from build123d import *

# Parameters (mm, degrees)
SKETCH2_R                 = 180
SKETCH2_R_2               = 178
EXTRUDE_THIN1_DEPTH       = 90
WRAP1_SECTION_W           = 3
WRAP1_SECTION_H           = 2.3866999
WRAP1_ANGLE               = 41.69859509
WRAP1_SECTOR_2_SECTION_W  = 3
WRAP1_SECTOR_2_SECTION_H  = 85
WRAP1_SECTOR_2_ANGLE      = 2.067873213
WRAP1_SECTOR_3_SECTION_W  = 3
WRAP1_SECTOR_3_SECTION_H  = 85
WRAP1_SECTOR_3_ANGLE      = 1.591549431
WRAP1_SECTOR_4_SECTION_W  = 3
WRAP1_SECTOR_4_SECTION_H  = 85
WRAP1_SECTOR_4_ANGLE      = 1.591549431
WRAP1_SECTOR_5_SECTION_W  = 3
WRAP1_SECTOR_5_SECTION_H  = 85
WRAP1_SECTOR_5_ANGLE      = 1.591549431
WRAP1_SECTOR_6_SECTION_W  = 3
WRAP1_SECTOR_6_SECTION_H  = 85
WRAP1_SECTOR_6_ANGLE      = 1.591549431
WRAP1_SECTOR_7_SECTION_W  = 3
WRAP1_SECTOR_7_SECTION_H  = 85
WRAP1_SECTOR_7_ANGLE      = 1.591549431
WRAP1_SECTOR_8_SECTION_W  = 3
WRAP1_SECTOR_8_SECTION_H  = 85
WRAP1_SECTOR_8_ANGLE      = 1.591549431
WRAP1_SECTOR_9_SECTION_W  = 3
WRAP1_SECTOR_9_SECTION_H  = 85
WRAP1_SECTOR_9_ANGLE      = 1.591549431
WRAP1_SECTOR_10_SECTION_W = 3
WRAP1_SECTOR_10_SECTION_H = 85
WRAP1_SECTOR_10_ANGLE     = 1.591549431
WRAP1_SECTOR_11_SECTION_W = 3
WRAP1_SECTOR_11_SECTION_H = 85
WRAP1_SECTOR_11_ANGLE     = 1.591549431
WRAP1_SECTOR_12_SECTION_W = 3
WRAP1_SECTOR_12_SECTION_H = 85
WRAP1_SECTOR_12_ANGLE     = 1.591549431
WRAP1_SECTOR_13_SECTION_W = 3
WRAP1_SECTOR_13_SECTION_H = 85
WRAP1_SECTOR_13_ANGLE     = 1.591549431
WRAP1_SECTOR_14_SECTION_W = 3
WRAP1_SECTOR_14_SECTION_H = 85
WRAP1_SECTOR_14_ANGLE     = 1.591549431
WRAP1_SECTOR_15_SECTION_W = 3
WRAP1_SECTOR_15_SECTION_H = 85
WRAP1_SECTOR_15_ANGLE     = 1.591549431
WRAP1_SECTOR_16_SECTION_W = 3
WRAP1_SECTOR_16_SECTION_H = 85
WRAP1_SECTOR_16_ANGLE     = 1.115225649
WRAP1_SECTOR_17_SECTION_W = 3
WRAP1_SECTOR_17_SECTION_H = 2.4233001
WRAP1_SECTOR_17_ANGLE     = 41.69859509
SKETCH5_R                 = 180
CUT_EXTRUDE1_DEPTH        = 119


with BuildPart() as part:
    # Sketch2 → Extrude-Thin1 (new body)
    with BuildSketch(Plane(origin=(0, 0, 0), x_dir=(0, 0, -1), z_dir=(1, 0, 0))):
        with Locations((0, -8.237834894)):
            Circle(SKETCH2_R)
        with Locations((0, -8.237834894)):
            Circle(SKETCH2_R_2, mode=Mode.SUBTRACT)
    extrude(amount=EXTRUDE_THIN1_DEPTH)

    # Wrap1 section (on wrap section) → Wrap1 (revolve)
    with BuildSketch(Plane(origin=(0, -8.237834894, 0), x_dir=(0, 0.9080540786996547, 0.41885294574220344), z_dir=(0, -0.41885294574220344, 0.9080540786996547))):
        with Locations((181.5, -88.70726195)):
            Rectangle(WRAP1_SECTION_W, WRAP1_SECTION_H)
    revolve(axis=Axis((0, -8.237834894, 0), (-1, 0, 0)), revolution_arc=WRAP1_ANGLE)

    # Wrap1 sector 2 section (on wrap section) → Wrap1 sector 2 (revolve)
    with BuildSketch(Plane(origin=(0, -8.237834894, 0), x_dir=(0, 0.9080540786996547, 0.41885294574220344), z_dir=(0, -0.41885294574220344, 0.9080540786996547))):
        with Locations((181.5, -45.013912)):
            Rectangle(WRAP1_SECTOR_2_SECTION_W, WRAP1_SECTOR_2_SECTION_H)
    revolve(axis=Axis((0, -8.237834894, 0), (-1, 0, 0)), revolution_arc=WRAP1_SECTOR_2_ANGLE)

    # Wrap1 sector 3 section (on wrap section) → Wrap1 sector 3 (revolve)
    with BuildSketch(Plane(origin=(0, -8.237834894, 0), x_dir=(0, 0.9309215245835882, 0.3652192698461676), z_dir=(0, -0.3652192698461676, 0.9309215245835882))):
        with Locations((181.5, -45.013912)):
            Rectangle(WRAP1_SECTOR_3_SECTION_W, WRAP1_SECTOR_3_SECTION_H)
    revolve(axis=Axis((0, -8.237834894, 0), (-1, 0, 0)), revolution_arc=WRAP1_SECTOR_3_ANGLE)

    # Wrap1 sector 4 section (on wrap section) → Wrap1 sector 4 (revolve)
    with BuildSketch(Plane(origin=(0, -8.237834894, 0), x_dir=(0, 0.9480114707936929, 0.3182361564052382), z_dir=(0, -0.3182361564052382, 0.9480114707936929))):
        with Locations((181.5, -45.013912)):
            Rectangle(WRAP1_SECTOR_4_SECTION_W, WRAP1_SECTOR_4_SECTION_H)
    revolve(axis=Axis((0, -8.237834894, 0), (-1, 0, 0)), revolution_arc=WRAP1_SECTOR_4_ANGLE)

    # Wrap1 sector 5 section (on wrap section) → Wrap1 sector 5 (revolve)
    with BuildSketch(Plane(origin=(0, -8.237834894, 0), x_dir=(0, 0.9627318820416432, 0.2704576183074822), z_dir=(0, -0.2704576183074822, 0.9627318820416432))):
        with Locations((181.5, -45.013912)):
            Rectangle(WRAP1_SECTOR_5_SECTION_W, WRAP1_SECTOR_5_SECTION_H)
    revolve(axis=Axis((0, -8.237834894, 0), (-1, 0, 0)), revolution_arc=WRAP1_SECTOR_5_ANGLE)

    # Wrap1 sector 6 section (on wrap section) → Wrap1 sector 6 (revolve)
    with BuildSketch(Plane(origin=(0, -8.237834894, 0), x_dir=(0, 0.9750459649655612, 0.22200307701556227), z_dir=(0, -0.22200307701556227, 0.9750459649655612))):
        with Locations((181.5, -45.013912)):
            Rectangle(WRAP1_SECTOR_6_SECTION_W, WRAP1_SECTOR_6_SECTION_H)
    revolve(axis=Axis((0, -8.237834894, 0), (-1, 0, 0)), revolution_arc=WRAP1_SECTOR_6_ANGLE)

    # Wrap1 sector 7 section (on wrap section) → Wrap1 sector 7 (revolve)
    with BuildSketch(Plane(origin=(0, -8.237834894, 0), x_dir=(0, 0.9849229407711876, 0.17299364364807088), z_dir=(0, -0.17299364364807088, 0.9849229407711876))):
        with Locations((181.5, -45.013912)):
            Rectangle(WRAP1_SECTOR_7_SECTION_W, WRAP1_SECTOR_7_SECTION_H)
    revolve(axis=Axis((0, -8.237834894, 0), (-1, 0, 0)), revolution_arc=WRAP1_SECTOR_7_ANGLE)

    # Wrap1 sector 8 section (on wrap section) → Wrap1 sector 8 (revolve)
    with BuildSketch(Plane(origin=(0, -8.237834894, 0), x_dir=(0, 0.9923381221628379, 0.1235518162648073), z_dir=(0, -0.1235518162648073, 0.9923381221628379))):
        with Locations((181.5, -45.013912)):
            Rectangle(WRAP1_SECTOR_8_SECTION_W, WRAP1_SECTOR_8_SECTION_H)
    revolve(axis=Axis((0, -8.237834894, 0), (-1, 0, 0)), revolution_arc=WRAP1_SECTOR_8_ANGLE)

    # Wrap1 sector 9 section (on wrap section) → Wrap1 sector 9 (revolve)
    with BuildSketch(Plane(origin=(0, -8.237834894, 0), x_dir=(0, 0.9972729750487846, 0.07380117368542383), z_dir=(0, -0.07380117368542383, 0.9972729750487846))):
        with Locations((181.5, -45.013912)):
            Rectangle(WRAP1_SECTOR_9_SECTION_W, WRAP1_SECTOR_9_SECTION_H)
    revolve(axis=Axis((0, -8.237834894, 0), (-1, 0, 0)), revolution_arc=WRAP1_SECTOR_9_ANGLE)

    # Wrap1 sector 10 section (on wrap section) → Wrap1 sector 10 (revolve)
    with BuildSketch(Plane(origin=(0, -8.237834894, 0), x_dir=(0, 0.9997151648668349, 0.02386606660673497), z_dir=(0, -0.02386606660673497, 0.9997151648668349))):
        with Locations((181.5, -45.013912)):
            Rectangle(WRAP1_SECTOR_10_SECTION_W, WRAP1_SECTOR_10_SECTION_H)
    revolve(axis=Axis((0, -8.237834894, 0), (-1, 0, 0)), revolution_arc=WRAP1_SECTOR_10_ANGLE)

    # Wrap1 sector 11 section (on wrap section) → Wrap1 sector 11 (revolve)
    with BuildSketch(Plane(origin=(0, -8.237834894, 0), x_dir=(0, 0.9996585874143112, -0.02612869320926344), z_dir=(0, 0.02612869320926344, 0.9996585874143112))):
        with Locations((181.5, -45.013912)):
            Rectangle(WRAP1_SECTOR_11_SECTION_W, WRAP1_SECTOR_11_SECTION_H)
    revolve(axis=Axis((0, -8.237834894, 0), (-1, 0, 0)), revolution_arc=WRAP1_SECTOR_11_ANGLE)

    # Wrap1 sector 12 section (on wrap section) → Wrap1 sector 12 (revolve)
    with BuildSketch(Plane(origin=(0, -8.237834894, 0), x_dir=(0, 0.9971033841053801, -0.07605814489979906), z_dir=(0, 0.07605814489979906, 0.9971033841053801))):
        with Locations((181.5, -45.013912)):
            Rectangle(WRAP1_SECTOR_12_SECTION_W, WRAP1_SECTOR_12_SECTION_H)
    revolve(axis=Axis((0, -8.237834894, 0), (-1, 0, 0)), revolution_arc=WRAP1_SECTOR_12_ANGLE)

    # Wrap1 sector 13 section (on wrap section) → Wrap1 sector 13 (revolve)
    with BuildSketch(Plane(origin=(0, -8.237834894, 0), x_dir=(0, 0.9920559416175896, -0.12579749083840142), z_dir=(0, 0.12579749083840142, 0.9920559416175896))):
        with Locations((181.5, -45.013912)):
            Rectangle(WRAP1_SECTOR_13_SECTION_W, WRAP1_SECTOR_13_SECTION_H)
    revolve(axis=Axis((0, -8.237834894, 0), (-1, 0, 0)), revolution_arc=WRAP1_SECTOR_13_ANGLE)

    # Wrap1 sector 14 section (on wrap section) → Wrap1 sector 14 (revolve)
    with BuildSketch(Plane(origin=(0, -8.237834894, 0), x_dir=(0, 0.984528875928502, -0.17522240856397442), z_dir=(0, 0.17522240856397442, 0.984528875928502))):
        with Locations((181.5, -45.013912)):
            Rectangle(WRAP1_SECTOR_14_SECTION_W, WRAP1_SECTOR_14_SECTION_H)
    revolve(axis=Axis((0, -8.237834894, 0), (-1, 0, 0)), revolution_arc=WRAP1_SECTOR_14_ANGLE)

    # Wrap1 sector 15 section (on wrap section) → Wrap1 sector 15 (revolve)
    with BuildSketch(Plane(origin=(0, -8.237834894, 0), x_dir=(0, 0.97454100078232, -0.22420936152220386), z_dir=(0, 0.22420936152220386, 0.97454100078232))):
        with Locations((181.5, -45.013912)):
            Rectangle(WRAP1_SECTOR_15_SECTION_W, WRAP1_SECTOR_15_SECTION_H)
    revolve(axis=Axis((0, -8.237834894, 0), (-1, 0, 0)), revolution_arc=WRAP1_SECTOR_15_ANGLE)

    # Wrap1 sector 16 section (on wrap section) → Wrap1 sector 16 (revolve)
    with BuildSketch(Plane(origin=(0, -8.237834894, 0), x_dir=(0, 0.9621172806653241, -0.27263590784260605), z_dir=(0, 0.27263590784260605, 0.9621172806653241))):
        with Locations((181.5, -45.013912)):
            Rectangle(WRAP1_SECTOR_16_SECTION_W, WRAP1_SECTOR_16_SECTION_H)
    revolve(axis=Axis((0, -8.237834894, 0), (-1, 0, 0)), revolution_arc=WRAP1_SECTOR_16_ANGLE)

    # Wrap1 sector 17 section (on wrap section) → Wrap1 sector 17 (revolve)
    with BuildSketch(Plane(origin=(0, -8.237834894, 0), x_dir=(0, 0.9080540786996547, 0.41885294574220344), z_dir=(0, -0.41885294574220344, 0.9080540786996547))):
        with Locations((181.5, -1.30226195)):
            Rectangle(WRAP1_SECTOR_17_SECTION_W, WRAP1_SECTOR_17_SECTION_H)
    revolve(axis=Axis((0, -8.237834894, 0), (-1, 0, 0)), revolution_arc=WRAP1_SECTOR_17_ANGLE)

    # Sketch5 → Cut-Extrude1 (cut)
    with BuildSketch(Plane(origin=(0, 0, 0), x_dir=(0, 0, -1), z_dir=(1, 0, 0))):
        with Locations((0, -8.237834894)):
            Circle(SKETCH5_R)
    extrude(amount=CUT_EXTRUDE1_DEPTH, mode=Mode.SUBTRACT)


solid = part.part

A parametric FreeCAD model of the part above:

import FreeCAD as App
import Part
import Sketcher
from FreeCAD import Vector
Q = App.Units.Quantity


def add_polygon(sketch, points):
    """Adds a closed chain of lines whose ends are joined by coincident constraints."""
    first, n = sketch.GeometryCount, len(points)
    for a, b in zip(points, points[1:] + points[:1]):
        sketch.addGeometry(Part.LineSegment(App.Vector(*a, 0), App.Vector(*b, 0)), False)
    for i in range(n):
        sketch.addConstraint(Sketcher.Constraint("Coincident", first + i, 2, first + (i + 1) % n, 1))

doc = App.newDocument("Part")
body = doc.addObject("PartDesign::Body", "Body")

sketch1 = body.newObject("Sketcher::SketchObject", "Sketch")
sketch1.AttachmentSupport = (doc.getObject("YZ_Plane"), [""])
sketch1.MapMode = "FlatFace"
sketch1.addGeometry(Part.Circle(Vector(-8.237835, 0, 0), Vector(0, 0, 1), 180), False)
sketch1.addGeometry(Part.Circle(Vector(-8.237835, 0, 0), Vector(0, 0, 1), 178), False)
sketch1.addConstraint(Sketcher.Constraint("Coincident", 1, 3, 0, 3))
sketch1.addConstraint(Sketcher.Constraint("PointOnObject", 0, 3, -1))
sketch1.addConstraint(Sketcher.Constraint("Diameter", 0, Q("360 mm")))
sketch1.addConstraint(Sketcher.Constraint("Diameter", 1, Q("356 mm")))
sketch1.addConstraint(Sketcher.Constraint("DistanceX", 0, 3, -1, 1, Q("8.237835 mm")))
pad1 = body.newObject("PartDesign::Pad", "Pad")
pad1.Profile = sketch1
pad1.Length = 90

sketch2 = body.newObject("Sketcher::SketchObject", "Sketch001")
sketch2.Placement = App.Placement(Vector(0, -8.237835, 0), App.Rotation(Vector(0, 0.908054079, 0.418852946), Vector(-1.000000001, 0, 0), Vector(0, -0.418852946, 0.908054079), "ZXY"))
add_polygon(sketch2, [(180, -87.513912), (180, -89.900612), (183, -89.900612), (183, -87.513912)])
sketch2.addConstraint(Sketcher.Constraint("Vertical", 0))
sketch2.addConstraint(Sketcher.Constraint("Horizontal", 1))
sketch2.addConstraint(Sketcher.Constraint("Vertical", 2))
sketch2.addConstraint(Sketcher.Constraint("Horizontal", 3))
sketch2.addConstraint(Sketcher.Constraint("DistanceX", 1, 1, 1, 2, Q("3 mm")))
sketch2.addConstraint(Sketcher.Constraint("DistanceX", -1, 1, 0, 2, Q("180 mm")))
sketch2.addConstraint(Sketcher.Constraint("DistanceY", 0, 2, 0, 1, Q("2.3867 mm")))
sketch2.addConstraint(Sketcher.Constraint("DistanceY", 0, 2, -1, 1, Q("89.900612 mm")))
revolution = body.newObject("PartDesign::Revolution", "Revolution")
revolution.Profile = sketch2
revolution.ReferenceAxis = (sketch2, ["V_Axis"])
revolution.Angle = 41.698595

sketch3 = body.newObject("Sketcher::SketchObject", "Sketch002")
sketch3.Placement = App.Placement(Vector(0, -8.237835, 0), App.Rotation(Vector(0, 0.908054079, 0.418852946), Vector(-1.000000001, 0, 0), Vector(0, -0.418852946, 0.908054079), "ZXY"))
add_polygon(sketch3, [(180, -2.513912), (180, -87.513912), (183, -87.513912), (183, -2.513912)])
sketch3.addConstraint(Sketcher.Constraint("Vertical", 0))
sketch3.addConstraint(Sketcher.Constraint("Horizontal", 1))
sketch3.addConstraint(Sketcher.Constraint("Vertical", 2))
sketch3.addConstraint(Sketcher.Constraint("Horizontal", 3))
sketch3.addConstraint(Sketcher.Constraint("DistanceX", 1, 1, 1, 2, Q("3 mm")))
sketch3.addConstraint(Sketcher.Constraint("DistanceY", 0, 2, 0, 1, Q("85 mm")))
sketch3.addConstraint(Sketcher.Constraint("DistanceX", -1, 1, 0, 2, Q("180 mm")))
sketch3.addConstraint(Sketcher.Constraint("DistanceY", 0, 2, -1, 1, Q("87.513912 mm")))
revolution2 = body.newObject("PartDesign::Revolution", "Revolution001")
revolution2.Profile = sketch3
revolution2.ReferenceAxis = (sketch3, ["V_Axis"])
revolution2.Angle = 2.067873

sketch4 = body.newObject("Sketcher::SketchObject", "Sketch003")
sketch4.Placement = App.Placement(Vector(0, -8.237835, 0), App.Rotation(Vector(0, 0.930921525, 0.36521927), Vector(-1.000000001, 0, 0), Vector(0, -0.36521927, 0.930921525), "ZXY"))
add_polygon(sketch4, [(180, -2.513912), (180, -87.513912), (183, -87.513912), (183, -2.513912)])
sketch4.addConstraint(Sketcher.Constraint("Vertical", 0))
sketch4.addConstraint(Sketcher.Constraint("Horizontal", 1))
sketch4.addConstraint(Sketcher.Constraint("Vertical", 2))
sketch4.addConstraint(Sketcher.Constraint("Horizontal", 3))
sketch4.addConstraint(Sketcher.Constraint("DistanceX", 1, 1, 1, 2, Q("3 mm")))
sketch4.addConstraint(Sketcher.Constraint("DistanceY", 0, 2, 0, 1, Q("85 mm")))
sketch4.addConstraint(Sketcher.Constraint("DistanceX", -1, 1, 0, 2, Q("180 mm")))
sketch4.addConstraint(Sketcher.Constraint("DistanceY", 0, 2, -1, 1, Q("87.513912 mm")))
revolution3 = body.newObject("PartDesign::Revolution", "Revolution002")
revolution3.Profile = sketch4
revolution3.ReferenceAxis = (sketch4, ["V_Axis"])
revolution3.Angle = 1.591549

sketch5 = body.newObject("Sketcher::SketchObject", "Sketch004")
sketch5.Placement = App.Placement(Vector(0, -8.237835, 0), App.Rotation(Vector(0, 0.948011471, 0.318236156), Vector(-1, 0, 0), Vector(0, -0.318236156, 0.948011471), "ZXY"))
add_polygon(sketch5, [(180, -2.513912), (180, -87.513912), (183, -87.513912), (183, -2.513912)])
sketch5.addConstraint(Sketcher.Constraint("Vertical", 0))
sketch5.addConstraint(Sketcher.Constraint("Horizontal", 1))
sketch5.addConstraint(Sketcher.Constraint("Vertical", 2))
sketch5.addConstraint(Sketcher.Constraint("Horizontal", 3))
sketch5.addConstraint(Sketcher.Constraint("DistanceX", 1, 1, 1, 2, Q("3 mm")))
sketch5.addConstraint(Sketcher.Constraint("DistanceY", 0, 2, 0, 1, Q("85 mm")))
sketch5.addConstraint(Sketcher.Constraint("DistanceX", -1, 1, 0, 2, Q("180 mm")))
sketch5.addConstraint(Sketcher.Constraint("DistanceY", 0, 2, -1, 1, Q("87.513912 mm")))
revolution4 = body.newObject("PartDesign::Revolution", "Revolution003")
revolution4.Profile = sketch5
revolution4.ReferenceAxis = (sketch5, ["V_Axis"])
revolution4.Angle = 1.591549

sketch6 = body.newObject("Sketcher::SketchObject", "Sketch005")
sketch6.Placement = App.Placement(Vector(0, -8.237835, 0), App.Rotation(Vector(0, 0.962731882, 0.270457618), Vector(-1, 0, 0), Vector(0, -0.270457618, 0.962731882), "ZXY"))
add_polygon(sketch6, [(180, -2.513912), (180, -87.513912), (183, -87.513912), (183, -2.513912)])
sketch6.addConstraint(Sketcher.Constraint("Vertical", 0))
sketch6.addConstraint(Sketcher.Constraint("Horizontal", 1))
sketch6.addConstraint(Sketcher.Constraint("Vertical", 2))
sketch6.addConstraint(Sketcher.Constraint("Horizontal", 3))
sketch6.addConstraint(Sketcher.Constraint("DistanceX", 1, 1, 1, 2, Q("3 mm")))
sketch6.addConstraint(Sketcher.Constraint("DistanceY", 0, 2, 0, 1, Q("85 mm")))
sketch6.addConstraint(Sketcher.Constraint("DistanceX", -1, 1, 0, 2, Q("180 mm")))
sketch6.addConstraint(Sketcher.Constraint("DistanceY", 0, 2, -1, 1, Q("87.513912 mm")))
revolution5 = body.newObject("PartDesign::Revolution", "Revolution004")
revolution5.Profile = sketch6
revolution5.ReferenceAxis = (sketch6, ["V_Axis"])
revolution5.Angle = 1.591549

sketch7 = body.newObject("Sketcher::SketchObject", "Sketch006")
sketch7.Placement = App.Placement(Vector(0, -8.237835, 0), App.Rotation(Vector(0, 0.975045965, 0.222003077), Vector(-1, 0, 0), Vector(0, -0.222003077, 0.975045965), "ZXY"))
add_polygon(sketch7, [(180, -2.513912), (180, -87.513912), (183, -87.513912), (183, -2.513912)])
sketch7.addConstraint(Sketcher.Constraint("Vertical", 0))
sketch7.addConstraint(Sketcher.Constraint("Horizontal", 1))
sketch7.addConstraint(Sketcher.Constraint("Vertical", 2))
sketch7.addConstraint(Sketcher.Constraint("Horizontal", 3))
sketch7.addConstraint(Sketcher.Constraint("DistanceX", 1, 1, 1, 2, Q("3 mm")))
sketch7.addConstraint(Sketcher.Constraint("DistanceY", 0, 2, 0, 1, Q("85 mm")))
sketch7.addConstraint(Sketcher.Constraint("DistanceX", -1, 1, 0, 2, Q("180 mm")))
sketch7.addConstraint(Sketcher.Constraint("DistanceY", 2, 2, -1, 1, Q("2.513912 mm")))
revolution6 = body.newObject("PartDesign::Revolution", "Revolution005")
revolution6.Profile = sketch7
revolution6.ReferenceAxis = (sketch7, ["V_Axis"])
revolution6.Angle = 1.591549

sketch8 = body.newObject("Sketcher::SketchObject", "Sketch007")
sketch8.Placement = App.Placement(Vector(0, -8.237835, 0), App.Rotation(Vector(0, 0.984922941, 0.172993644), Vector(-1.000000001, 0, 0), Vector(0, -0.172993644, 0.984922941), "ZXY"))
add_polygon(sketch8, [(180, -2.513912), (180, -87.513912), (183, -87.513912), (183, -2.513912)])
sketch8.addConstraint(Sketcher.Constraint("Vertical", 0))
sketch8.addConstraint(Sketcher.Constraint("Horizontal", 1))
sketch8.addConstraint(Sketcher.Constraint("Vertical", 2))
sketch8.addConstraint(Sketcher.Constraint("Horizontal", 3))
sketch8.addConstraint(Sketcher.Constraint("DistanceX", 1, 1, 1, 2, Q("3 mm")))
sketch8.addConstraint(Sketcher.Constraint("DistanceY", 0, 2, 0, 1, Q("85 mm")))
sketch8.addConstraint(Sketcher.Constraint("DistanceX", -1, 1, 0, 2, Q("180 mm")))
sketch8.addConstraint(Sketcher.Constraint("DistanceY", 0, 2, -1, 1, Q("87.513912 mm")))
revolution7 = body.newObject("PartDesign::Revolution", "Revolution006")
revolution7.Profile = sketch8
revolution7.ReferenceAxis = (sketch8, ["V_Axis"])
revolution7.Angle = 1.591549

sketch9 = body.newObject("Sketcher::SketchObject", "Sketch008")
sketch9.Placement = App.Placement(Vector(0, -8.237835, 0), App.Rotation(Vector(0, 0.992338122, 0.123551816), Vector(-1, 0, 0), Vector(0, -0.123551816, 0.992338122), "ZXY"))
add_polygon(sketch9, [(180, -2.513912), (180, -87.513912), (183, -87.513912), (183, -2.513912)])
sketch9.addConstraint(Sketcher.Constraint("Vertical", 0))
sketch9.addConstraint(Sketcher.Constraint("Horizontal", 1))
sketch9.addConstraint(Sketcher.Constraint("Vertical", 2))
sketch9.addConstraint(Sketcher.Constraint("Horizontal", 3))
sketch9.addConstraint(Sketcher.Constraint("DistanceX", 1, 1, 1, 2, Q("3 mm")))
sketch9.addConstraint(Sketcher.Constraint("DistanceY", 0, 2, 0, 1, Q("85 mm")))
sketch9.addConstraint(Sketcher.Constraint("DistanceX", -1, 1, 0, 2, Q("180 mm")))
sketch9.addConstraint(Sketcher.Constraint("DistanceY", 0, 2, -1, 1, Q("87.513912 mm")))
revolution8 = body.newObject("PartDesign::Revolution", "Revolution007")
revolution8.Profile = sketch9
revolution8.ReferenceAxis = (sketch9, ["V_Axis"])
revolution8.Angle = 1.591549

sketch10 = body.newObject("Sketcher::SketchObject", "Sketch009")
sketch10.Placement = App.Placement(Vector(0, -8.237835, 0), App.Rotation(Vector(0, 0.997272975, 0.073801174), Vector(-1, 0, 0), Vector(0, -0.073801174, 0.997272975), "ZXY"))
add_polygon(sketch10, [(180, -2.513912), (180, -87.513912), (183, -87.513912), (183, -2.513912)])
sketch10.addConstraint(Sketcher.Constraint("Vertical", 0))
sketch10.addConstraint(Sketcher.Constraint("Horizontal", 1))
sketch10.addConstraint(Sketcher.Constraint("Vertical", 2))
sketch10.addConstraint(Sketcher.Constraint("Horizontal", 3))
sketch10.addConstraint(Sketcher.Constraint("DistanceX", 1, 1, 1, 2, Q("3 mm")))
sketch10.addConstraint(Sketcher.Constraint("DistanceY", 0, 2, 0, 1, Q("85 mm")))
sketch10.addConstraint(Sketcher.Constraint("DistanceX", -1, 1, 0, 2, Q("180 mm")))
sketch10.addConstraint(Sketcher.Constraint("DistanceY", 0, 2, -1, 1, Q("87.513912 mm")))
revolution9 = body.newObject("PartDesign::Revolution", "Revolution008")
revolution9.Profile = sketch10
revolution9.ReferenceAxis = (sketch10, ["V_Axis"])
revolution9.Angle = 1.591549

sketch11 = body.newObject("Sketcher::SketchObject", "Sketch010")
sketch11.Placement = App.Placement(Vector(0, -8.237835, 0), App.Rotation(Vector(0, 0.999715165, 0.023866067), Vector(-1, 0, 0), Vector(0, -0.023866067, 0.999715165), "ZXY"))
add_polygon(sketch11, [(180, -2.513912), (180, -87.513912), (183, -87.513912), (183, -2.513912)])
sketch11.addConstraint(Sketcher.Constraint("Vertical", 0))
sketch11.addConstraint(Sketcher.Constraint("Horizontal", 1))
sketch11.addConstraint(Sketcher.Constraint("Vertical", 2))
sketch11.addConstraint(Sketcher.Constraint("Horizontal", 3))
sketch11.addConstraint(Sketcher.Constraint("DistanceX", 1, 1, 1, 2, Q("3 mm")))
sketch11.addConstraint(Sketcher.Constraint("DistanceY", 0, 2, 0, 1, Q("85 mm")))
sketch11.addConstraint(Sketcher.Constraint("DistanceX", -1, 1, 0, 2, Q("180 mm")))
sketch11.addConstraint(Sketcher.Constraint("DistanceY", 0, 2, -1, 1, Q("87.513912 mm")))
revolution10 = body.newObject("PartDesign::Revolution", "Revolution009")
revolution10.Profile = sketch11
revolution10.ReferenceAxis = (sketch11, ["V_Axis"])
revolution10.Angle = 1.591549

sketch12 = body.newObject("Sketcher::SketchObject", "Sketch011")
sketch12.Placement = App.Placement(Vector(0, -8.237835, 0), App.Rotation(Vector(0, 0.999658587, -0.026128693), Vector(-0.999999999, 0, 0), Vector(0, 0.026128693, 0.999658587), "ZXY"))
add_polygon(sketch12, [(180, -2.513912), (180, -87.513912), (183, -87.513912), (183, -2.513912)])
sketch12.addConstraint(Sketcher.Constraint("Vertical", 0))
sketch12.addConstraint(Sketcher.Constraint("Horizontal", 1))
sketch12.addConstraint(Sketcher.Constraint("Vertical", 2))
sketch12.addConstraint(Sketcher.Constraint("Horizontal", 3))
sketch12.addConstraint(Sketcher.Constraint("DistanceX", 1, 1, 1, 2, Q("3 mm")))
sketch12.addConstraint(Sketcher.Constraint("DistanceY", 0, 2, 0, 1, Q("85 mm")))
sketch12.addConstraint(Sketcher.Constraint("DistanceX", -1, 1, 0, 2, Q("180 mm")))
sketch12.addConstraint(Sketcher.Constraint("DistanceY", 0, 2, -1, 1, Q("87.513912 mm")))
revolution11 = body.newObject("PartDesign::Revolution", "Revolution010")
revolution11.Profile = sketch12
revolution11.ReferenceAxis = (sketch12, ["V_Axis"])
revolution11.Angle = 1.591549

sketch13 = body.newObject("Sketcher::SketchObject", "Sketch012")
sketch13.Placement = App.Placement(Vector(0, -8.237835, 0), App.Rotation(Vector(0, 0.997103384, -0.076058145), Vector(-1, 0, 0), Vector(0, 0.076058145, 0.997103384), "ZXY"))
add_polygon(sketch13, [(180, -2.513912), (180, -87.513912), (183, -87.513912), (183, -2.513912)])
sketch13.addConstraint(Sketcher.Constraint("Vertical", 0))
sketch13.addConstraint(Sketcher.Constraint("Horizontal", 1))
sketch13.addConstraint(Sketcher.Constraint("Vertical", 2))
sketch13.addConstraint(Sketcher.Constraint("Horizontal", 3))
sketch13.addConstraint(Sketcher.Constraint("DistanceX", 1, 1, 1, 2, Q("3 mm")))
sketch13.addConstraint(Sketcher.Constraint("DistanceY", 0, 2, 0, 1, Q("85 mm")))
sketch13.addConstraint(Sketcher.Constraint("DistanceX", -1, 1, 0, 2, Q("180 mm")))
sketch13.addConstraint(Sketcher.Constraint("DistanceY", 0, 2, -1, 1, Q("87.513912 mm")))
revolution12 = body.newObject("PartDesign::Revolution", "Revolution011")
revolution12.Profile = sketch13
revolution12.ReferenceAxis = (sketch13, ["V_Axis"])
revolution12.Angle = 1.591549

sketch14 = body.newObject("Sketcher::SketchObject", "Sketch013")
sketch14.Placement = App.Placement(Vector(0, -8.237835, 0), App.Rotation(Vector(0, 0.992055942, -0.125797491), Vector(-1.000000001, 0, 0), Vector(0, 0.125797491, 0.992055942), "ZXY"))
add_polygon(sketch14, [(180, -2.513912), (180, -87.513912), (183, -87.513912), (183, -2.513912)])
sketch14.addConstraint(Sketcher.Constraint("Vertical", 0))
sketch14.addConstraint(Sketcher.Constraint("Horizontal", 1))
sketch14.addConstraint(Sketcher.Constraint("Vertical", 2))
sketch14.addConstraint(Sketcher.Constraint("Horizontal", 3))
sketch14.addConstraint(Sketcher.Constraint("DistanceX", 1, 1, 1, 2, Q("3 mm")))
sketch14.addConstraint(Sketcher.Constraint("DistanceY", 0, 2, 0, 1, Q("85 mm")))
sketch14.addConstraint(Sketcher.Constraint("DistanceX", -1, 1, 0, 2, Q("180 mm")))
sketch14.addConstraint(Sketcher.Constraint("DistanceY", 0, 2, -1, 1, Q("87.513912 mm")))
revolution13 = body.newObject("PartDesign::Revolution", "Revolution012")
revolution13.Profile = sketch14
revolution13.ReferenceAxis = (sketch14, ["V_Axis"])
revolution13.Angle = 1.591549

sketch15 = body.newObject("Sketcher::SketchObject", "Sketch014")
sketch15.Placement = App.Placement(Vector(0, -8.237835, 0), App.Rotation(Vector(0, 0.984528876, -0.175222409), Vector(-1, 0, 0), Vector(0, 0.175222409, 0.984528876), "ZXY"))
add_polygon(sketch15, [(180, -2.513912), (180, -87.513912), (183, -87.513912), (183, -2.513912)])
sketch15.addConstraint(Sketcher.Constraint("Vertical", 0))
sketch15.addConstraint(Sketcher.Constraint("Horizontal", 1))
sketch15.addConstraint(Sketcher.Constraint("Vertical", 2))
sketch15.addConstraint(Sketcher.Constraint("Horizontal", 3))
sketch15.addConstraint(Sketcher.Constraint("DistanceX", 1, 1, 1, 2, Q("3 mm")))
sketch15.addConstraint(Sketcher.Constraint("DistanceY", 0, 2, 0, 1, Q("85 mm")))
sketch15.addConstraint(Sketcher.Constraint("DistanceX", -1, 1, 0, 2, Q("180 mm")))
sketch15.addConstraint(Sketcher.Constraint("DistanceY", 0, 2, -1, 1, Q("87.513912 mm")))
revolution14 = body.newObject("PartDesign::Revolution", "Revolution013")
revolution14.Profile = sketch15
revolution14.ReferenceAxis = (sketch15, ["V_Axis"])
revolution14.Angle = 1.591549

sketch16 = body.newObject("Sketcher::SketchObject", "Sketch015")
sketch16.Placement = App.Placement(Vector(0, -8.237835, 0), App.Rotation(Vector(0, 0.974541001, -0.224209362), Vector(-1.000000001, 0, 0), Vector(0, 0.224209362, 0.974541001), "ZXY"))
add_polygon(sketch16, [(180, -2.513912), (180, -87.513912), (183, -87.513912), (183, -2.513912)])
sketch16.addConstraint(Sketcher.Constraint("Vertical", 0))
sketch16.addConstraint(Sketcher.Constraint("Horizontal", 1))
sketch16.addConstraint(Sketcher.Constraint("Vertical", 2))
sketch16.addConstraint(Sketcher.Constraint("Horizontal", 3))
sketch16.addConstraint(Sketcher.Constraint("DistanceX", 1, 1, 1, 2, Q("3 mm")))
sketch16.addConstraint(Sketcher.Constraint("DistanceY", 0, 2, 0, 1, Q("85 mm")))
sketch16.addConstraint(Sketcher.Constraint("DistanceX", -1, 1, 0, 2, Q("180 mm")))
sketch16.addConstraint(Sketcher.Constraint("DistanceY", 0, 2, -1, 1, Q("87.513912 mm")))
revolution15 = body.newObject("PartDesign::Revolution", "Revolution014")
revolution15.Profile = sketch16
revolution15.ReferenceAxis = (sketch16, ["V_Axis"])
revolution15.Angle = 1.591549

sketch17 = body.newObject("Sketcher::SketchObject", "Sketch016")
sketch17.Placement = App.Placement(Vector(0, -8.237835, 0), App.Rotation(Vector(0, 0.962117281, -0.272635908), Vector(-1.000000001, 0, 0), Vector(0, 0.272635908, 0.962117281), "ZXY"))
add_polygon(sketch17, [(180, -2.513912), (180, -87.513912), (183, -87.513912), (183, -2.513912)])
sketch17.addConstraint(Sketcher.Constraint("Vertical", 0))
sketch17.addConstraint(Sketcher.Constraint("Horizontal", 1))
sketch17.addConstraint(Sketcher.Constraint("Vertical", 2))
sketch17.addConstraint(Sketcher.Constraint("Horizontal", 3))
sketch17.addConstraint(Sketcher.Constraint("DistanceX", 1, 1, 1, 2, Q("3 mm")))
sketch17.addConstraint(Sketcher.Constraint("DistanceY", 0, 2, 0, 1, Q("85 mm")))
sketch17.addConstraint(Sketcher.Constraint("DistanceX", -1, 1, 0, 2, Q("180 mm")))
sketch17.addConstraint(Sketcher.Constraint("DistanceY", 0, 2, -1, 1, Q("87.513912 mm")))
revolution16 = body.newObject("PartDesign::Revolution", "Revolution015")
revolution16.Profile = sketch17
revolution16.ReferenceAxis = (sketch17, ["V_Axis"])
revolution16.Angle = 1.115226

sketch18 = body.newObject("Sketcher::SketchObject", "Sketch017")
sketch18.Placement = App.Placement(Vector(0, -8.237835, 0), App.Rotation(Vector(0, 0.908054079, 0.418852946), Vector(-1.000000001, 0, 0), Vector(0, -0.418852946, 0.908054079), "ZXY"))
add_polygon(sketch18, [(180, -0.090612), (180, -2.513912), (183, -2.513912), (183, -0.090612)])
sketch18.addConstraint(Sketcher.Constraint("Vertical", 0))
sketch18.addConstraint(Sketcher.Constraint("Horizontal", 1))
sketch18.addConstraint(Sketcher.Constraint("Vertical", 2))
sketch18.addConstraint(Sketcher.Constraint("Horizontal", 3))
sketch18.addConstraint(Sketcher.Constraint("DistanceX", 1, 1, 1, 2, Q("3 mm")))
sketch18.addConstraint(Sketcher.Constraint("DistanceX", -1, 1, 0, 2, Q("180 mm")))
sketch18.addConstraint(Sketcher.Constraint("DistanceY", 0, 2, 0, 1, Q("2.4233 mm")))
sketch18.addConstraint(Sketcher.Constraint("DistanceY", 2, 2, -1, 1, Q("0.090612 mm")))
revolution17 = body.newObject("PartDesign::Revolution", "Revolution016")
revolution17.Profile = sketch18
revolution17.ReferenceAxis = (sketch18, ["V_Axis"])
revolution17.Angle = 41.698595

sketch19 = body.newObject("Sketcher::SketchObject", "Sketch018")
sketch19.AttachmentSupport = (doc.getObject("YZ_Plane"), [""])
sketch19.MapMode = "FlatFace"
sketch19.addGeometry(Part.Circle(Vector(-8.237835, 0, 0), Vector(0, 0, 1), 180), False)
sketch19.addConstraint(Sketcher.Constraint("PointOnObject", 0, 3, -1))
sketch19.addConstraint(Sketcher.Constraint("Diameter", 0, Q("360 mm")))
sketch19.addConstraint(Sketcher.Constraint("DistanceX", 0, 3, -1, 1, Q("8.237835 mm")))
pocket1 = body.newObject("PartDesign::Pocket", "Pocket")
pocket1.Profile = sketch19
pocket1.Length = 119
pocket1.Reversed = True

doc.recompute()
